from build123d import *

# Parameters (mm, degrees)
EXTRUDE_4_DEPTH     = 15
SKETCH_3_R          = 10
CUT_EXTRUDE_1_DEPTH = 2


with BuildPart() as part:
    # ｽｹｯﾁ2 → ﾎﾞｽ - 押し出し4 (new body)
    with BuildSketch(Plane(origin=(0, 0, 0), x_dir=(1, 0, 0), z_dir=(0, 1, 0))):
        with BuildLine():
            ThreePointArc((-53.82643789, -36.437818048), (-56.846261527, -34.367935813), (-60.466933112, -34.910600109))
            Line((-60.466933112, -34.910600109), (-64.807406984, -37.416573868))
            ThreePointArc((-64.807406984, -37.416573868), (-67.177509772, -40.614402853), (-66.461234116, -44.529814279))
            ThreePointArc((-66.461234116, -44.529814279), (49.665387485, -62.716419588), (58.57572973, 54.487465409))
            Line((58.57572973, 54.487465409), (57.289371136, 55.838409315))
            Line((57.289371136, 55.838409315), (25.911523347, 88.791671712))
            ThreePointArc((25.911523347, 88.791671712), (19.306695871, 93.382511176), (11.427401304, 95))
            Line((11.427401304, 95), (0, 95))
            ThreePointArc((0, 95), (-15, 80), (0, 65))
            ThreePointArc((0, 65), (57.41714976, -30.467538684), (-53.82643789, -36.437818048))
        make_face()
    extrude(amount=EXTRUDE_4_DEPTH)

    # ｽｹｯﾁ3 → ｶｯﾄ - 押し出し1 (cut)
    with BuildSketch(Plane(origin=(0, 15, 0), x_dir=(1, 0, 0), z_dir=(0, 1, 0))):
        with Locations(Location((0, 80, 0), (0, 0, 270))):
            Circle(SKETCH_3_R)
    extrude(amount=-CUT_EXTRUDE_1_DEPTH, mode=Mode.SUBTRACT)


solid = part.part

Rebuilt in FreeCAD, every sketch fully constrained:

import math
import FreeCAD as App
import Part
import Sketcher

V = App.Vector
Q = App.Units.Quantity

doc = App.newDocument("Part")
body = doc.addObject("PartDesign::Body", "Body")

# Sketch on XZ plane
sketch1 = doc.addObject("Sketcher::SketchObject", "Sketch")
body.addObject(sketch1)
sketch1.AttachmentSupport = (doc.XZ_Plane, [""])
sketch1.MapMode = "FlatFace"
sketch1.addGeometry([
    Part.ArcOfCircle(Part.Circle(V(-57.966933, 39.240727, 0), V(0, 0, 1), 5), math.radians(-120), math.radians(-34.096044)),  # 0
    Part.LineSegment(V(-60.466933, 34.9106, 0), V(-64.807407, 37.416574, 0)),  # 1
    Part.ArcOfCircle(Part.Circle(V(-62.307407, 41.746701, 0), V(0, 0, 1), 5), math.radians(146.177446), math.radians(240)),  # 2
    Part.ArcOfCircle(Part.Circle(V(0, 0, 0), V(0, 0, 1), 80), math.radians(-42.929138), math.radians(146.177446)),  # 3
    Part.LineSegment(V(58.57573, -54.487465, 0), V(57.289371, -55.838409, 0)),  # 4
    Part.LineSegment(V(57.289371, -55.838409, 0), V(25.911523, -88.791672, 0)),  # 5
    Part.ArcOfCircle(Part.Circle(V(11.427401, -75, 0), V(0, 0, 1), 20), math.radians(-90), math.radians(-43.597155)),  # 6
    Part.LineSegment(V(11.427401, -95, 0), V(0, -95, 0)),  # 7
    Part.ArcOfCircle(Part.Circle(V(0, -80, 0), V(0, 0, 1), 15), math.radians(90), math.radians(270)),  # 8
    Part.ArcOfCircle(Part.Circle(V(0, 0, 0), V(0, 0, 1), 65), math.radians(-90), math.radians(145.903956)),  # 9
], False)
sketch1.addConstraint([
    Sketcher.Constraint("Tangent", 0, 1, 1, 1),
    Sketcher.Constraint("Tangent", 1, 2, 2, 2),
    Sketcher.Constraint("Tangent", 2, 1, 3, 2),
    Sketcher.Constraint("Coincident", 3, 1, 4, 1),
    Sketcher.Constraint("Coincident", 4, 2, 5, 1),
    Sketcher.Constraint("Tangent", 5, 2, 6, 2),
    Sketcher.Constraint("Tangent", 6, 1, 7, 1),
    Sketcher.Constraint("Tangent", 7, 2, 8, 2),
    Sketcher.Constraint("Tangent", 8, 1, 9, 1),
    Sketcher.Constraint("Tangent", 9, 2, 0, 2),
    Sketcher.Constraint("Horizontal", 7),
    Sketcher.Constraint("Coincident", 3, 3, -1, 1),
    Sketcher.Constraint("Coincident", 9, 3, -1, 1),
    Sketcher.Constraint("Equal", 0, 2),
    Sketcher.Constraint("PointOnObject", 8, 3, -2),
    Sketcher.Constraint("Parallel", 4, 5),
    Sketcher.Constraint("Radius", 0, 5.0),
    Sketcher.Constraint("Radius", 3, 80.0),
    Sketcher.Constraint("Radius", 6, 20.0),
    Sketcher.Constraint("Radius", 8, 15.0),
    Sketcher.Constraint("Radius", 9, 65.0),
    Sketcher.Constraint("Angle", 1, Q("150 deg")),
    Sketcher.Constraint("DistanceX", 7, 2, 7, 1, 11.427401),
    Sketcher.Constraint("DistanceY", -1, 1, 2, 3, 41.746701),
    Sketcher.Constraint("DistanceX", -1, 1, 3, 1, 58.57573),
    Sketcher.Constraint("DistanceX", -1, 1, 4, 2, 57.289371),
])
pad1 = doc.addObject("PartDesign::Pad", "Pad")
body.addObject(pad1)
pad1.Profile = sketch1
pad1.Length = 15
pad1.Reversed = True

# Sketch on XZ plane
sketch2 = doc.addObject("Sketcher::SketchObject", "Sketch001")
body.addObject(sketch2)
sketch2.AttachmentSupport = (doc.XZ_Plane, [""])
sketch2.MapMode = "FlatFace"
sketch2.AttachmentOffset = App.Placement(V(0, 0, -15), App.Rotation())
sketch2.addGeometry(Part.Circle(V(0, -80, 0), V(0, 0, 1), 10), False)
sketch2.addConstraint([
    Sketcher.Constraint("PointOnObject", 0, 3, -2),
    Sketcher.Constraint("Diameter", 0, 20.0),
    Sketcher.Constraint("DistanceY", 0, 3, -1, 1, 80.0),
])
pocket1 = doc.addObject("PartDesign::Pocket", "Pocket")
body.addObject(pocket1)
pocket1.Profile = sketch2
pocket1.Length = 2
pocket1.Reversed = True

doc.recompute()
